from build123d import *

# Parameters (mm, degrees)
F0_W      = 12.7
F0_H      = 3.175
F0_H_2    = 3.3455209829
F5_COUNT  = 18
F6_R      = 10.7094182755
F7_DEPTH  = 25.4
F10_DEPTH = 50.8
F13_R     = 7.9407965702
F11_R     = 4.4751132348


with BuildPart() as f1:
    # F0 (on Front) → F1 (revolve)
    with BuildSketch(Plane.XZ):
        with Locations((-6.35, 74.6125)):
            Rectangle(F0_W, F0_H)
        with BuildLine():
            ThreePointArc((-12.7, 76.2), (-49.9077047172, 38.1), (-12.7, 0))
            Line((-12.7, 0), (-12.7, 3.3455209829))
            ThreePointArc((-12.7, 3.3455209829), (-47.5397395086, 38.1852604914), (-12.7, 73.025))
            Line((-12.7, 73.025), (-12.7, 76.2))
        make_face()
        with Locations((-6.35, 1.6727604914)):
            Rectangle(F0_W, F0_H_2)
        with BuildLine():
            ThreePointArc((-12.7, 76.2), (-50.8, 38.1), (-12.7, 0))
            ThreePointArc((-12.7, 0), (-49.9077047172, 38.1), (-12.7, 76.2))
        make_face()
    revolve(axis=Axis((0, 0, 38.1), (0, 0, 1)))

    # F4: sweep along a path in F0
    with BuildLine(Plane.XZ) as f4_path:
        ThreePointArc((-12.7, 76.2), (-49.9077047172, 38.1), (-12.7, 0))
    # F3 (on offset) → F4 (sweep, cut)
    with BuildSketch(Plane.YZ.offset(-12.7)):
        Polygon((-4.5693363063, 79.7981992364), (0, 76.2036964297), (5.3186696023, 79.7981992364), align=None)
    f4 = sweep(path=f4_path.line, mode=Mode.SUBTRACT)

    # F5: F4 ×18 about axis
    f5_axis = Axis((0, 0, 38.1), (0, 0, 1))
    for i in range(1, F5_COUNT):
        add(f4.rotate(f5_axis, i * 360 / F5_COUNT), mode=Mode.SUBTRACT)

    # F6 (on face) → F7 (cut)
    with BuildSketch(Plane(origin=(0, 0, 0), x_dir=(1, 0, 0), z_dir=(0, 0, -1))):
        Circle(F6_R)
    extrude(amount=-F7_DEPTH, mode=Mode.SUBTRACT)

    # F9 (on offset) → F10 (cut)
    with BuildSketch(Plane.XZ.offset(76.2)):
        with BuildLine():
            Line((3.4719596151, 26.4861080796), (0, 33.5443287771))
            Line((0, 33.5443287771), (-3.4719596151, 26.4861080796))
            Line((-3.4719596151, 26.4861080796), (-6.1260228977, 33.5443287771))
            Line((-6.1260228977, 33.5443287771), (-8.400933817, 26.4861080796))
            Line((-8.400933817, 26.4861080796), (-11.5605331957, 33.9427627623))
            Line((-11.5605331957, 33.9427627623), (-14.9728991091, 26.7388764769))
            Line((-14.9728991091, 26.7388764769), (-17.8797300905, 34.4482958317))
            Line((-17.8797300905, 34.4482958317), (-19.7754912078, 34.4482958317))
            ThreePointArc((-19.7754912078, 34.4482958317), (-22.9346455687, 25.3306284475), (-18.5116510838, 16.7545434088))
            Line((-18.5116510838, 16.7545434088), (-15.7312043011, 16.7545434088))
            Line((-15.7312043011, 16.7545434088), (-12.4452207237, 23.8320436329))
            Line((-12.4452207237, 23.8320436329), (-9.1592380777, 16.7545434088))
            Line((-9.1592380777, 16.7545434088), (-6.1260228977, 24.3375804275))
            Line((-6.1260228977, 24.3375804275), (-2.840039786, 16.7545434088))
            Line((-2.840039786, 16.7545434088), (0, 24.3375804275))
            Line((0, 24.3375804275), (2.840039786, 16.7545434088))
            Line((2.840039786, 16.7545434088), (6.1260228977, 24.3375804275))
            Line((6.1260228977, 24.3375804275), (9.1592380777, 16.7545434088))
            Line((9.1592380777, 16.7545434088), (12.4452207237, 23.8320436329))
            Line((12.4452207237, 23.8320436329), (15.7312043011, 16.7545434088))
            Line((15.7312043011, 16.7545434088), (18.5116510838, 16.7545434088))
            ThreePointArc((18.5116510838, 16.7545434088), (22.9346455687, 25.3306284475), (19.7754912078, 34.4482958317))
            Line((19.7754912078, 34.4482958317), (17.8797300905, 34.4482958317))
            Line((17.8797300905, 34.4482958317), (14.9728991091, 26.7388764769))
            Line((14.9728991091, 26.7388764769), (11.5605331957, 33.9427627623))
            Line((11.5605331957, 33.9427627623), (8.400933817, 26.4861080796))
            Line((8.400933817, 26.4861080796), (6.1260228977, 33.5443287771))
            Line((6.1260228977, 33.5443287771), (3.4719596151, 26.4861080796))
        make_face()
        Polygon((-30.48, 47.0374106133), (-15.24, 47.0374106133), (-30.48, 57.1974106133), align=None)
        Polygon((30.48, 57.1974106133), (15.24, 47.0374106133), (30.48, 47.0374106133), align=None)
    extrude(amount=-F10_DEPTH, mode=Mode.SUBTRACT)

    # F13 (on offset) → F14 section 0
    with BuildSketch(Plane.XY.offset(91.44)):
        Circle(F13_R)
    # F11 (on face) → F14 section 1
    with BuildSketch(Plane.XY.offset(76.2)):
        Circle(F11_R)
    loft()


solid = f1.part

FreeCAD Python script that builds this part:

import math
import FreeCAD as App
import Part
import Sketcher

V = App.Vector
Q = App.Units.Quantity


def add_polygon(sketch, points):
    """Adds a closed chain of lines whose ends are joined by coincident constraints."""
    first, n = sketch.GeometryCount, len(points)
    for a, b in zip(points, points[1:] + points[:1]):
        sketch.addGeometry(Part.LineSegment(App.Vector(*a, 0), App.Vector(*b, 0)), False)
    for i in range(n):
        sketch.addConstraint(Sketcher.Constraint("Coincident", first + i, 2, first + (i + 1) % n, 1))

doc = App.newDocument("Part")
params = doc.addObject("Spreadsheet::Sheet", "Params")
for row, (alias, value) in enumerate([
    ("sketch1_radius", "1.5 in"),
    ("sketch1_width", "0.5 in"),
    ("sketch1_height", "0.125 in"),
    ("revolution_angle", "360 deg"),
    ("pocket1_length", "1 in"),
    ("sketch5_width", "0.6 in"),
    ("sketch5_height", "0.4 in"),
    ("pocket2_length", "2 in"),
], start=1):
    params.set(f"A{row}", alias)
    params.set(f"B{row}", "=" + value)
    params.setAlias(f"B{row}", alias)

body = doc.addObject("PartDesign::Body", "Body")

sketch1 = doc.addObject("Sketcher::SketchObject", "Sketch")
body.addObject(sketch1)
sketch1.AttachmentSupport = (doc.XZ_Plane, [""])
sketch1.MapMode = "FlatFace"
sketch1.addGeometry([
    Part.LineSegment(V(-12.7, 73.025, 0), V(0, 73.025, 0)),
    Part.LineSegment(V(0, 73.025, 0), V(0, 76.2, 0)),
    Part.LineSegment(V(0, 76.2, 0), V(-12.7, 76.2, 0)),
    Part.ArcOfCircle(Part.Circle(V(-12.7, 38.1, 0), V(0, 0, 1), 38.1), math.radians(90), math.radians(270)),
    Part.LineSegment(V(-12.7, 0, 0), V(0, 0, 0)),
    Part.LineSegment(V(0, 0, 0), V(0, 3.345521, 0)),
    Part.LineSegment(V(0, 3.345521, 0), V(-12.7, 3.345521, 0)),
    Part.ArcOfCircle(Part.Circle(V(-12.7, 38.18526, 0), V(0, 0, 1), 34.83974), math.radians(90), math.radians(270)),
], False)
sketch1.addConstraint([
    Sketcher.Constraint("Coincident", 0, 2, 1, 1),
    Sketcher.Constraint("Coincident", 1, 2, 2, 1),
    Sketcher.Constraint("Tangent", 2, 2, 3, 1),
    Sketcher.Constraint("Tangent", 3, 2, 4, 1),
    Sketcher.Constraint("Coincident", 4, 2, 5, 1),
    Sketcher.Constraint("Coincident", 5, 2, 6, 1),
    Sketcher.Constraint("Tangent", 6, 2, 7, 2),
    Sketcher.Constraint("Tangent", 7, 1, 0, 1),
    Sketcher.Constraint("Horizontal", 0),
    Sketcher.Constraint("Vertical", 1),
    Sketcher.Constraint("Horizontal", 2),
    Sketcher.Constraint("Horizontal", 4),
    Sketcher.Constraint("Vertical", 5),
    Sketcher.Constraint("Horizontal", 6),
    Sketcher.Constraint("Coincident", 4, 2, -1, 1),
    Sketcher.Constraint("PointOnObject", 0, 2, -2),
    Sketcher.Constraint("Vertical", 3, 3, 7, 3),
    Sketcher.Constraint("Radius", 3, Q("1.5 in")),
    Sketcher.Constraint("DistanceX", 0, 1, 0, 2, Q("0.5 in")),
    Sketcher.Constraint("DistanceY", 1, 1, 1, 2, Q("0.125 in")),
    Sketcher.Constraint("Radius", 7, Q("34.83974 mm")),
])
sketch1.setExpression("Constraints[17]", "Params.sketch1_radius")
sketch1.setExpression("Constraints[18]", "Params.sketch1_width")
sketch1.setExpression("Constraints[19]", "Params.sketch1_height")
revolution = doc.addObject("PartDesign::Revolution", "Revolution")
body.addObject(revolution)
revolution.Profile = sketch1
revolution.ReferenceAxis = (sketch1, ["V_Axis"])
revolution.setExpression("Angle", "Params.revolution_angle")

sketch2 = doc.addObject("Sketcher::SketchObject", "Sketch001")
body.addObject(sketch2)
sketch2.AttachmentSupport = (doc.YZ_Plane, [""])
sketch2.MapMode = "FlatFace"
sketch2.AttachmentOffset = App.Placement(V(0, 0, -0.5 * 25.4), App.Rotation())
add_polygon(sketch2, [(-4.569336, 79.798199), (0, 76.203696), (5.31867, 79.798199)])
sketch2.addConstraint([
    Sketcher.Constraint("Horizontal", 2),
    Sketcher.Constraint("PointOnObject", 0, 2, -2),
    Sketcher.Constraint("Distance", 1, Q("6.4194 mm")),
    Sketcher.Constraint("DistanceY", -1, 1, 1, 2, Q("79.798199 mm")),
    Sketcher.Constraint("DistanceX", 2, 2, 2, 1, Q("9.888006 mm")),
    Sketcher.Constraint("DistanceX", -1, 1, 1, 2, Q("5.31867 mm")),
])

sketch3 = doc.addObject("Sketcher::SketchObject", "Sketch002")
body.addObject(sketch3)
sketch3.AttachmentSupport = (doc.XZ_Plane, [""])
sketch3.MapMode = "FlatFace"
sketch3.addGeometry(Part.ArcOfCircle(Part.Circle(V(-11.797005, 38.1, 0), V(0, 0, 1), 38.110699), math.radians(91.357693), math.radians(268.642307)), False)
sketch3.addConstraint([
    Sketcher.Constraint("PointOnObject", 0, 2, -1),
    Sketcher.Constraint("DistanceY", -1, 1, 0, 1, Q("3 in")),
    Sketcher.Constraint("DistanceY", -1, 1, 0, 3, Q("1.5 in")),
    Sketcher.Constraint("DistanceX", 0, 1, -1, 1, Q("0.5 in")),
    Sketcher.Constraint("Radius", 0, Q("38.110699 mm")),
])
doc.recompute()

subtractivepipe = doc.addObject("PartDesign::SubtractivePipe", "SubtractivePipe")
body.addObject(subtractivepipe)
subtractivepipe.Profile = sketch2
subtractivepipe.Spine = (sketch3, ["Edge1"])
doc.recompute()

polarpattern = doc.addObject("PartDesign::PolarPattern", "PolarPattern")
body.addObject(polarpattern)
polarpattern.Originals = [subtractivepipe]
polarpattern.Axis = (doc.Z_Axis, [""])
polarpattern.Angle = 360
polarpattern.Occurrences = 18
body.Tip = polarpattern

sketch4 = doc.addObject("Sketcher::SketchObject", "Sketch003")
body.addObject(sketch4)
sketch4.AttachmentSupport = (doc.XY_Plane, [""])
sketch4.MapMode = "FlatFace"
sketch4.addGeometry(Part.Circle(V(0, 0, 0), V(0, 0, 1), 10.709418), False)
sketch4.addConstraint([
    Sketcher.Constraint("Coincident", 0, 3, -1, 1),
    Sketcher.Constraint("Diameter", 0, Q("21.418837 mm")),
])
pocket1 = doc.addObject("PartDesign::Pocket", "Pocket")
body.addObject(pocket1)
pocket1.Profile = sketch4
pocket1.setExpression("Length", "Params.pocket1_length")
pocket1.Reversed = True

sketch5 = doc.addObject("Sketcher::SketchObject", "Sketch004")
body.addObject(sketch5)
sketch5.AttachmentSupport = (doc.XZ_Plane, [""])
sketch5.MapMode = "FlatFace"
sketch5.AttachmentOffset = App.Placement(V(0, 0, 3 * 25.4), App.Rotation())
sketch5.addGeometry(Part.LineSegment(V(3.47196, 26.486108, 0), V(0, 33.544329, 0)), False)
sketch5.addGeometry(Part.LineSegment(V(0, 33.544329, 0), V(-3.47196, 26.486108, 0)), False)
sketch5.addGeometry(Part.LineSegment(V(-3.47196, 26.486108, 0), V(-6.126023, 33.544329, 0)), False)
sketch5.addGeometry(Part.LineSegment(V(-6.126023, 33.544329, 0), V(-8.400934, 26.486108, 0)), False)
sketch5.addGeometry(Part.LineSegment(V(-8.400934, 26.486108, 0), V(-11.560533, 33.942763, 0)), False)
sketch5.addGeometry(Part.LineSegment(V(-11.560533, 33.942763, 0), V(-14.972899, 26.738876, 0)), False)
sketch5.addGeometry(Part.LineSegment(V(-14.972899, 26.738876, 0), V(-17.87973, 34.448296, 0)), False)
sketch5.addGeometry(Part.LineSegment(V(-17.87973, 34.448296, 0), V(-19.775491, 34.448296, 0)), False)
sketch5.addGeometry(Part.ArcOfCircle(Part.Circle(V(-10.716544, 26.20335, 0), V(0, 0, 1), 12.24923), math.radians(137.693296), math.radians(230.477942)), False)
sketch5.addGeometry(Part.LineSegment(V(-18.511651, 16.754543, 0), V(-15.731204, 16.754543, 0)), False)
sketch5.addGeometry(Part.LineSegment(V(-15.731204, 16.754543, 0), V(-12.445221, 23.832044, 0)), False)
sketch5.addGeometry(Part.LineSegment(V(-12.445221, 23.832044, 0), V(-9.159238, 16.754543, 0)), False)
sketch5.addGeometry(Part.LineSegment(V(-9.159238, 16.754543, 0), V(-6.126023, 24.33758, 0)), False)
sketch5.addGeometry(Part.LineSegment(V(-6.126023, 24.33758, 0), V(-2.84004, 16.754543, 0)), False)
sketch5.addGeometry(Part.LineSegment(V(-2.84004, 16.754543, 0), V(0, 24.33758, 0)), False)
sketch5.addGeometry(Part.LineSegment(V(0, 24.33758, 0), V(2.84004, 16.754543, 0)), False)
sketch5.addGeometry(Part.LineSegment(V(2.84004, 16.754543, 0), V(6.126023, 24.33758, 0)), False)
sketch5.addGeometry(Part.LineSegment(V(6.126023, 24.33758, 0), V(9.159238, 16.754543, 0)), False)
sketch5.addGeometry(Part.LineSegment(V(9.159238, 16.754543, 0), V(12.445221, 23.832044, 0)), False)
sketch5.addGeometry(Part.LineSegment(V(12.445221, 23.832044, 0), V(15.731204, 16.754543, 0)), False)
sketch5.addGeometry(Part.LineSegment(V(15.731204, 16.754543, 0), V(18.511651, 16.754543, 0)), False)
sketch5.addGeometry(Part.ArcOfCircle(Part.Circle(V(10.716544, 26.20335, 0), V(0, 0, 1), 12.24923), math.radians(-50.477942), math.radians(42.306704)), False)
sketch5.addGeometry(Part.LineSegment(V(19.775491, 34.448296, 0), V(17.87973, 34.448296, 0)), False)
sketch5.addGeometry(Part.LineSegment(V(17.87973, 34.448296, 0), V(14.972899, 26.738876, 0)), False)
sketch5.addGeometry(Part.LineSegment(V(14.972899, 26.738876, 0), V(11.560533, 33.942763, 0)), False)
sketch5.addGeometry(Part.LineSegment(V(11.560533, 33.942763, 0), V(8.400934, 26.486108, 0)), False)
sketch5.addGeometry(Part.LineSegment(V(8.400934, 26.486108, 0), V(6.126023, 33.544329, 0)), False)
sketch5.addGeometry(Part.LineSegment(V(6.126023, 33.544329, 0), V(3.47196, 26.486108, 0)), False)
add_polygon(sketch5, [(-30.48, 47.037411), (-15.24, 47.037411), (-30.48, 57.197411)])
add_polygon(sketch5, [(30.48, 57.197411), (15.24, 47.037411), (30.48, 47.037411)])
sketch5.addConstraint([
    Sketcher.Constraint("Coincident", 0, 2, 1, 1),
    Sketcher.Constraint("Coincident", 1, 2, 2, 1),
    Sketcher.Constraint("Coincident", 2, 2, 3, 1),
    Sketcher.Constraint("Coincident", 3, 2, 4, 1),
    Sketcher.Constraint("Coincident", 4, 2, 5, 1),
    Sketcher.Constraint("Coincident", 5, 2, 6, 1),
    Sketcher.Constraint("Coincident", 6, 2, 7, 1),
    Sketcher.Constraint("Coincident", 7, 2, 8, 1),
    Sketcher.Constraint("Coincident", 8, 2, 9, 1),
    Sketcher.Constraint("Coincident", 9, 2, 10, 1),
    Sketcher.Constraint("Coincident", 10, 2, 11, 1),
    Sketcher.Constraint("Coincident", 11, 2, 12, 1),
    Sketcher.Constraint("Coincident", 12, 2, 13, 1),
    Sketcher.Constraint("Coincident", 13, 2, 14, 1),
    Sketcher.Constraint("Coincident", 14, 2, 15, 1),
    Sketcher.Constraint("Coincident", 15, 2, 16, 1),
    Sketcher.Constraint("Coincident", 16, 2, 17, 1),
    Sketcher.Constraint("Coincident", 17, 2, 18, 1),
    Sketcher.Constraint("Coincident", 18, 2, 19, 1),
    Sketcher.Constraint("Coincident", 19, 2, 20, 1),
    Sketcher.Constraint("Coincident", 20, 2, 21, 1),
    Sketcher.Constraint("Coincident", 21, 2, 22, 1),
    Sketcher.Constraint("Coincident", 22, 2, 23, 1),
    Sketcher.Constraint("Coincident", 23, 2, 24, 1),
    Sketcher.Constraint("Coincident", 24, 2, 25, 1),
    Sketcher.Constraint("Coincident", 25, 2, 26, 1),
    Sketcher.Constraint("Coincident", 26, 2, 27, 1),
    Sketcher.Constraint("Coincident", 27, 2, 0, 1),
    Sketcher.Constraint("Horizontal", 7),
    Sketcher.Constraint("Horizontal", 9),
    Sketcher.Constraint("Horizontal", 20),
    Sketcher.Constraint("Horizontal", 22),
    Sketcher.Constraint("Horizontal", 28),
    Sketcher.Constraint("Vertical", 30),
    Sketcher.Constraint("Horizontal", 32),
    Sketcher.Constraint("Vertical", 33),
    Sketcher.Constraint("Equal", 8, 21),
    Sketcher.Constraint("Symmetric", 8, 3, 21, 3, -2),
    Sketcher.Constraint("Symmetric", 13, 2, 15, 2, -2),
    Sketcher.Constraint("Symmetric", 12, 2, 16, 2, -2),
    Sketcher.Constraint("Symmetric", 11, 2, 17, 2, -2),
    Sketcher.Constraint("Symmetric", 10, 2, 18, 2, -2),
    Sketcher.Constraint("Symmetric", 9, 2, 19, 2, -2),
    Sketcher.Constraint("Symmetric", 6, 2, 22, 2, -2),
    Sketcher.Constraint("Symmetric", 5, 2, 23, 2, -2),
    Sketcher.Constraint("Symmetric", 4, 2, 24, 2, -2),
    Sketcher.Constraint("Symmetric", 3, 2, 25, 2, -2),
    Sketcher.Constraint("Symmetric", 2, 2, 26, 2, -2),
    Sketcher.Constraint("Symmetric", 1, 2, 27, 2, -2),
    Sketcher.Constraint("Symmetric", 28, 2, 31, 2, -2),
    Sketcher.Constraint("Symmetric", 29, 2, 33, 2, -2),
    Sketcher.Constraint("PointOnObject", 0, 2, -2),
    Sketcher.Constraint("PointOnObject", 14, 2, -2),
    Sketcher.Constraint("Parallel", 10, 18),
    Sketcher.Constraint("Horizontal", 0, 2, 2, 2),
    Sketcher.Constraint("Horizontal", 1, 2, 3, 2),
    Sketcher.Constraint("Horizontal", 9, 2, 11, 2),
    Sketcher.Constraint("Horizontal", 11, 2, 13, 2),
    Sketcher.Constraint("Horizontal", 12, 2, 14, 2),
    Sketcher.Constraint("Vertical", 2, 2, 12, 2),
    Sketcher.Constraint("DistanceX", 28, 1, 28, 2, Q("0.6 in")),
    Sketcher.Constraint("DistanceY", 30, 2, 30, 1, Q("0.4 in")),
    Sketcher.Constraint("DistanceX", 28, 2, -1, 1, Q("0.6 in")),
    Sketcher.Constraint("Radius", 8, Q("12.24923 mm")),
    Sketcher.Constraint("DistanceX", 11, 2, -1, 1, Q("0.3605999 in")),
    Sketcher.Constraint("DistanceX", 7, 2, 7, 1, Q("1.895761 mm")),
    Sketcher.Constraint("DistanceX", 5, 2, -1, 1, Q("14.972899 mm")),
    Sketcher.Constraint("DistanceX", 4, 2, 3, 2, Q("3.159599 mm")),
    Sketcher.Constraint("DistanceY", 9, 2, 10, 2, Q("7.0775 mm")),
    Sketcher.Constraint("DistanceX", 11, 2, 13, 2, Q("6.319198 mm")),
    Sketcher.Constraint("DistanceX", 1, 2, 15, 2, Q("6.311999 mm")),
    Sketcher.Constraint("Distance", 0, Q("7.865938 mm")),
    Sketcher.Constraint("Distance", 5, Q("7.971212 mm")),
    Sketcher.Constraint("Distance", 10, Q("7.803121 mm")),
    Sketcher.Constraint("Distance", 12, Q("8.167181 mm")),
    Sketcher.Constraint("Distance", 13, Q("8.26439 mm")),
    Sketcher.Constraint("DistanceX", 9, 1, 9, 2, Q("2.780447 mm")),
    Sketcher.Constraint("DistanceY", -1, 1, 8, 3, Q("26.20335 mm")),
    Sketcher.Constraint("DistanceY", -1, 1, 0, 2, Q("33.544329 mm")),
    Sketcher.Constraint("DistanceX", 6, 2, -1, 1, Q("17.87973 mm")),
    Sketcher.Constraint("DistanceY", -1, 1, 12, 2, Q("24.33758 mm")),
    Sketcher.Constraint("DistanceY", -1, 1, 28, 2, Q("47.037411 mm")),
    Sketcher.Constraint("DistanceX", 8, 3, 3, 2, Q("2.31561 mm")),
    Sketcher.Constraint("DistanceY", 3, 2, 5, 2, Q("0.252768 mm")),
])
sketch5.setExpression("Constraints[66]", "Params.sketch5_width")
sketch5.setExpression("Constraints[67]", "Params.sketch5_height")
pocket2 = doc.addObject("PartDesign::Pocket", "Pocket001")
body.addObject(pocket2)
pocket2.Profile = sketch5
pocket2.setExpression("Length", "Params.pocket2_length")

sketch6 = doc.addObject("Sketcher::SketchObject", "Sketch005")
body.addObject(sketch6)
sketch6.AttachmentSupport = (doc.XY_Plane, [""])
sketch6.MapMode = "FlatFace"
sketch6.AttachmentOffset = App.Placement(V(0, 0, 3.6 * 25.4), App.Rotation())
sketch6.addGeometry(Part.Circle(V(0, 0, 0), V(0, 0, 1), 7.940797), False)
sketch6.addConstraint([
    Sketcher.Constraint("Coincident", 0, 3, -1, 1),
    Sketcher.Constraint("Diameter", 0, Q("15.881593 mm")),
])

sketch7 = doc.addObject("Sketcher::SketchObject", "Sketch006")
body.addObject(sketch7)
sketch7.AttachmentSupport = (doc.XY_Plane, [""])
sketch7.MapMode = "FlatFace"
sketch7.AttachmentOffset = App.Placement(V(0, 0, 3 * 25.4), App.Rotation())
sketch7.addGeometry(Part.Circle(V(0, 0, 0), V(0, 0, 1), 4.475113), False)
sketch7.addConstraint([
    Sketcher.Constraint("Coincident", 0, 3, -1, 1),
    Sketcher.Constraint("Diameter", 0, Q("8.950226 mm")),
])

additiveloft = doc.addObject("PartDesign::AdditiveLoft", "AdditiveLoft")
body.addObject(additiveloft)
additiveloft.Profile = sketch6
additiveloft.Sections = [sketch7]

doc.recompute()
